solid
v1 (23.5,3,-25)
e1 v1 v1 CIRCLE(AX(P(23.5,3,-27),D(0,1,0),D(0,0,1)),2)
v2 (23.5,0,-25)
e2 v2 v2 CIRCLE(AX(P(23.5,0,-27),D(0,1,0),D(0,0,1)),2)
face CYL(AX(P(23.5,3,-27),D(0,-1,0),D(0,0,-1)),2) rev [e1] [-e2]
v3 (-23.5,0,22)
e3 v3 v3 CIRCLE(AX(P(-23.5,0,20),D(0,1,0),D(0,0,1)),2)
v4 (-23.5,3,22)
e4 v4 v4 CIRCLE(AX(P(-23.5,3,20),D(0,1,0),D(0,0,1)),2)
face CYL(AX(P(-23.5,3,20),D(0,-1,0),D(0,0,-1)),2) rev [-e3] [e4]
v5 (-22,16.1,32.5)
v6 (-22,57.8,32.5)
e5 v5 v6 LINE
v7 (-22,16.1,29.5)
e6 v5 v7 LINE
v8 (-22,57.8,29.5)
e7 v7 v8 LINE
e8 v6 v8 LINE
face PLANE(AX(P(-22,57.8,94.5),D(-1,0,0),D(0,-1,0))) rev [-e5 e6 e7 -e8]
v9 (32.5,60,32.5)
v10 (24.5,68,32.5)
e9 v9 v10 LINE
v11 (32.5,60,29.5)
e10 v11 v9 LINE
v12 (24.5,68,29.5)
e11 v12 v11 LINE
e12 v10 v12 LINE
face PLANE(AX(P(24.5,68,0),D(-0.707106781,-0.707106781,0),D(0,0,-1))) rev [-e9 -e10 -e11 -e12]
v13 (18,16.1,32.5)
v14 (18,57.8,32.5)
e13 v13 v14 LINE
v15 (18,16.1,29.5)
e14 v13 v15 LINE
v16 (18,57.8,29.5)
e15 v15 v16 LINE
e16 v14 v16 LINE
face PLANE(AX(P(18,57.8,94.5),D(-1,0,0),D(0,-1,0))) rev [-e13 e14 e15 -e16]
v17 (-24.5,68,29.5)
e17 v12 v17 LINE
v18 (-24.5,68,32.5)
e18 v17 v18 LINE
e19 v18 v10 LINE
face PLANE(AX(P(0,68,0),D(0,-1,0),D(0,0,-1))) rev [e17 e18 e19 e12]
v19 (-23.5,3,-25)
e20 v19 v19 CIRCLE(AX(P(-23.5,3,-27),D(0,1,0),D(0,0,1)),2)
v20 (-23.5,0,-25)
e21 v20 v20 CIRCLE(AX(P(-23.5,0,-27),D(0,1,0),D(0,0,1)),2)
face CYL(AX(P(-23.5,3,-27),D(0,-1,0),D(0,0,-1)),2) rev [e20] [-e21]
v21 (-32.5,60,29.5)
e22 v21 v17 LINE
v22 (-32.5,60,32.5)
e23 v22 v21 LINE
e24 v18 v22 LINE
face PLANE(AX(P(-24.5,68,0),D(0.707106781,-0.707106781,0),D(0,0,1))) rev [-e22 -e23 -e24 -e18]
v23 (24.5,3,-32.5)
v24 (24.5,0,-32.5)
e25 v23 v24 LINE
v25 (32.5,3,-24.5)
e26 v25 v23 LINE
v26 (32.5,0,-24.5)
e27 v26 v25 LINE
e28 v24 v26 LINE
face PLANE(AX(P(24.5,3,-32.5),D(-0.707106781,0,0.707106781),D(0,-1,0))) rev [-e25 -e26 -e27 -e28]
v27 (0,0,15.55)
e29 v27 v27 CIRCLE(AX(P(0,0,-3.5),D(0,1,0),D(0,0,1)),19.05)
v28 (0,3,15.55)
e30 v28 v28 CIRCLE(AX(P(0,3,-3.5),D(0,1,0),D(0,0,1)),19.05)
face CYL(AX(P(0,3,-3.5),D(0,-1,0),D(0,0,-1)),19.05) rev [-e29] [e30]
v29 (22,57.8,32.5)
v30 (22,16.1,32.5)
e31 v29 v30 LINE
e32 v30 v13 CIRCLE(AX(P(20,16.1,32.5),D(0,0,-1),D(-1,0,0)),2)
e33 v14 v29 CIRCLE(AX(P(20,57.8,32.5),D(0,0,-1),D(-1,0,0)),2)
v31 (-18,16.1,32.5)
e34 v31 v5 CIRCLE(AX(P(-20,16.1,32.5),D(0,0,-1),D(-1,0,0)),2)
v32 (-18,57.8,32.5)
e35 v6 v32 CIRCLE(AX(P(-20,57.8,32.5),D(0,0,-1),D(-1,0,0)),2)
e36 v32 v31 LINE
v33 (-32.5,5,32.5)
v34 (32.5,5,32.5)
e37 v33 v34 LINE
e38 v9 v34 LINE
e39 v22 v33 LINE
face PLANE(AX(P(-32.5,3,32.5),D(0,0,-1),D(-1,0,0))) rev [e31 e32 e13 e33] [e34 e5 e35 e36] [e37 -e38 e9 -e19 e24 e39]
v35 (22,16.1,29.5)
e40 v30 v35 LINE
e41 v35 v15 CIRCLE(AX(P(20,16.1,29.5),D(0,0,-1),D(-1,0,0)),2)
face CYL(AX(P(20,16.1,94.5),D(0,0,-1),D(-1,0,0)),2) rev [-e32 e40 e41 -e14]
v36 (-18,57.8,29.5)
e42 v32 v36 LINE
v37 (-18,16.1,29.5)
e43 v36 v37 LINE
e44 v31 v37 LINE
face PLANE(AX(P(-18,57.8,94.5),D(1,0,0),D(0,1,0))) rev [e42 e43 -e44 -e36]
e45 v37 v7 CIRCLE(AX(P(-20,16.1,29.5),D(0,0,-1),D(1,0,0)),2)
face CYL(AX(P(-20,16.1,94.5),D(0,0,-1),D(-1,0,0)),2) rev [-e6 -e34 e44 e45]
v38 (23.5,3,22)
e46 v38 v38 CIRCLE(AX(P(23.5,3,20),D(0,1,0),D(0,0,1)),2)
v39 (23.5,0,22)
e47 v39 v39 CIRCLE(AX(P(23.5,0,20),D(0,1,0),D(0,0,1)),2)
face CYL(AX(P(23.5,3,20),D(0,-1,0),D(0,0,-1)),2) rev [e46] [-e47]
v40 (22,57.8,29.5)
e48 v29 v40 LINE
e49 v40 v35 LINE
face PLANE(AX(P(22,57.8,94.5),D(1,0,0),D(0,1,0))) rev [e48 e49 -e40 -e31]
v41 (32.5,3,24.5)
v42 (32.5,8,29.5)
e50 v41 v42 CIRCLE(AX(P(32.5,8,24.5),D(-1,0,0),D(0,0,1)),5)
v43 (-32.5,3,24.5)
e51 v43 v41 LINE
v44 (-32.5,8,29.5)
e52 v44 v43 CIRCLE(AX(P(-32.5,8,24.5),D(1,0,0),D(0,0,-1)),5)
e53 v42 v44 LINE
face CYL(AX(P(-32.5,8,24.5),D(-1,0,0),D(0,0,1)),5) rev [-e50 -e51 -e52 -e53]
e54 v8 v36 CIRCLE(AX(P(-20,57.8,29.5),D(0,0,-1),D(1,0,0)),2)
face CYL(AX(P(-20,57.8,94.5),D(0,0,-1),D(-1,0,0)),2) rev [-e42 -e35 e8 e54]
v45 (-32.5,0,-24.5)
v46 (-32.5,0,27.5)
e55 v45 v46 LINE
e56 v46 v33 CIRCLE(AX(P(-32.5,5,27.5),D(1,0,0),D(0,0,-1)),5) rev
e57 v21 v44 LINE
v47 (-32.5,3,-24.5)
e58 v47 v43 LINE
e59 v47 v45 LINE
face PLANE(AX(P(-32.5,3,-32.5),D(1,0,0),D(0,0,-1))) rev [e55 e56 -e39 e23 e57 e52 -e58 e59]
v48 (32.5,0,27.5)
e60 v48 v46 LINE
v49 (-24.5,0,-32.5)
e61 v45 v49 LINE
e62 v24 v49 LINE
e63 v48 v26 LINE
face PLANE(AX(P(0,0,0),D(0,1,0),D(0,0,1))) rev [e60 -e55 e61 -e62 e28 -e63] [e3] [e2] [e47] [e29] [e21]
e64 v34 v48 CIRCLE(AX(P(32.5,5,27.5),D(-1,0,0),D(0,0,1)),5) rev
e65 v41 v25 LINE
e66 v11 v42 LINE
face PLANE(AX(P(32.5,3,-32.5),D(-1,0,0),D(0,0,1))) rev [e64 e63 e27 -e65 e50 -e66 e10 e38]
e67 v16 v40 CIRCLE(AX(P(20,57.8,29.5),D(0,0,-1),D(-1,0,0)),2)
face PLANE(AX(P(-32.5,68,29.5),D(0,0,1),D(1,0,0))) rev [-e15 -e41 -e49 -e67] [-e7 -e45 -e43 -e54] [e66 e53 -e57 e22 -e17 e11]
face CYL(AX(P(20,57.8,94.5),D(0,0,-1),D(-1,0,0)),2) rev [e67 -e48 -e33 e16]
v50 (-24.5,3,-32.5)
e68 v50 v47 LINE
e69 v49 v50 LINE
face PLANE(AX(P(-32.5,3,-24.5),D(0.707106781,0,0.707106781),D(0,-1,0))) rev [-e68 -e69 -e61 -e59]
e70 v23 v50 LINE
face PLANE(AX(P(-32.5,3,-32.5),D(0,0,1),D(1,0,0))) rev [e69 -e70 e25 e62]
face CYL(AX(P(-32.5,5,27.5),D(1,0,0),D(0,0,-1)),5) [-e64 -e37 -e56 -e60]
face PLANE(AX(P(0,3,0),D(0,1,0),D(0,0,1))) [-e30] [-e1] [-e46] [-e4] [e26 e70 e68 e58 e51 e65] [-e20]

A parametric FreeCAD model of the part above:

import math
import FreeCAD as App
import Part
import Sketcher

V = App.Vector


def edges_at(feature, points):
    """Names of the edges that pass closest to the given points."""
    edges = feature.Shape.Edges
    near = lambda p: min(range(len(edges)), key=lambda i: edges[i].distToShape(Part.Vertex(*p))[0])
    return sorted({f"Edge{near(p) + 1}" for p in points})

doc = App.newDocument("Part")
params = doc.addObject("Spreadsheet::Sheet", "Params")
for row, (alias, value) in enumerate([
    ("sketch1_diameter", "4 mm"),
    ("sketch1_diameter2", "38.1 mm"),
    ("sketch1_width", "65 mm"),
    ("pad1_length", "3 mm"),
    ("chamfer_size", "8 mm"),
    ("sketch2_width", "65 mm"),
    ("sketch2_height", "3 mm"),
    ("pad2_length", "65 mm"),
    ("fillet_radius", "5 mm"),
    ("chamfer2_size", "8 mm"),
    ("sketch3_radius", "2 mm"),
    ("sketch3_height", "41.7 mm"),
    ("pocket1_length", "65 mm"),
], start=1):
    params.set(f"A{row}", alias)
    params.set(f"B{row}", "=" + value)
    params.setAlias(f"B{row}", alias)

body = doc.addObject("PartDesign::Body", "Body")

sketch1 = body.newObject("Sketcher::SketchObject", "Sketch")
sketch1.AttachmentSupport = (doc.getObject("XZ_Plane"), [""])
sketch1.MapMode = "FlatFace"
sketch1.addGeometry(Part.LineSegment(V(-32.5, -32.5, 0), V(-32.5, 32.5, 0)), False)
sketch1.addGeometry(Part.LineSegment(V(-32.5, 32.5, 0), V(32.5, 32.5, 0)), False)
sketch1.addGeometry(Part.LineSegment(V(32.5, 32.5, 0), V(32.5, -32.5, 0)), False)
sketch1.addGeometry(Part.LineSegment(V(32.5, -32.5, 0), V(-32.5, -32.5, 0)), False)
sketch1.addGeometry(Part.Circle(V(-23.5, 20, 0), V(0, 0, 1), 2), False)
sketch1.addGeometry(Part.Circle(V(23.5, 20, 0), V(0, 0, 1), 2), False)
sketch1.addGeometry(Part.Circle(V(-23.5, -27, 0), V(0, 0, 1), 2), False)
sketch1.addGeometry(Part.Circle(V(0, -3.5, 0), V(0, 0, 1), 19.1), False)
sketch1.addGeometry(Part.Circle(V(23.5, -27, 0), V(0, 0, 1), 2), False)
sketch1.addConstraint(Sketcher.Constraint("Coincident", 0, 2, 1, 1))
sketch1.addConstraint(Sketcher.Constraint("Coincident", 1, 2, 2, 1))
sketch1.addConstraint(Sketcher.Constraint("Coincident", 2, 2, 3, 1))
sketch1.addConstraint(Sketcher.Constraint("Coincident", 3, 2, 0, 1))
sketch1.addConstraint(Sketcher.Constraint("Vertical", 0))
sketch1.addConstraint(Sketcher.Constraint("Horizontal", 1))
sketch1.addConstraint(Sketcher.Constraint("Vertical", 2))
sketch1.addConstraint(Sketcher.Constraint("Horizontal", 3))
sketch1.addConstraint(Sketcher.Constraint("Equal", 4, 5))
sketch1.addConstraint(Sketcher.Constraint("Equal", 5, 6))
sketch1.addConstraint(Sketcher.Constraint("Equal", 6, 8))
sketch1.addConstraint(Sketcher.Constraint("Symmetric", 0, 2, 2, 2, -1, 1))
sketch1.addConstraint(Sketcher.Constraint("Symmetric", 4, 3, 5, 3, -2))
sketch1.addConstraint(Sketcher.Constraint("Symmetric", 6, 3, 8, 3, -2))
sketch1.addConstraint(Sketcher.Constraint("PointOnObject", 7, 3, -2))
sketch1.addConstraint(Sketcher.Constraint("Vertical", 4, 3, 6, 3))
sketch1.addConstraint(Sketcher.Constraint("Equal", 3, 0))
sketch1.addConstraint(Sketcher.Constraint("Diameter", 4, 4.0))
sketch1.addConstraint(Sketcher.Constraint("Diameter", 7, 38.1))
sketch1.addConstraint(Sketcher.Constraint("DistanceX", 1, 1, 1, 2, 65.0))
sketch1.addConstraint(Sketcher.Constraint("DistanceY", -1, 1, 4, 3, 20.0))
sketch1.addConstraint(Sketcher.Constraint("DistanceY", 6, 3, -1, 1, 27.0))
sketch1.addConstraint(Sketcher.Constraint("DistanceX", 4, 3, 5, 3, 47.0))
sketch1.addConstraint(Sketcher.Constraint("DistanceY", 7, 3, 0, 2, 36.0))
sketch1.setExpression("Constraints[17]", "Params.sketch1_diameter")
sketch1.setExpression("Constraints[18]", "Params.sketch1_diameter2")
sketch1.setExpression("Constraints[19]", "Params.sketch1_width")
pad1 = body.newObject("PartDesign::Pad", "Pad")
pad1.Profile = sketch1
pad1.setExpression("Length", "Params.pad1_length")
pad1.Reversed = True
doc.recompute()

chamfer = body.newObject("PartDesign::Chamfer", "Chamfer")
chamfer.Base = (pad1, edges_at(pad1, [(-32.5, 1.5, -32.5), (32.5, 1.5, -32.5)]))
chamfer.setExpression("Size", "Params.chamfer_size")

sketch2 = body.newObject("Sketcher::SketchObject", "Sketch001")
sketch2.AttachmentSupport = (doc.getObject("XZ_Plane"), [""])
sketch2.MapMode = "FlatFace"
sketch2.AttachmentOffset = App.Placement(V(0, 0, -3), App.Rotation())
sketch2.addGeometry(Part.LineSegment(V(-32.5, 29.5, 0), V(-32.5, 32.5, 0)), False)
sketch2.addGeometry(Part.LineSegment(V(-32.5, 32.5, 0), V(32.5, 32.5, 0)), False)
sketch2.addGeometry(Part.LineSegment(V(32.5, 32.5, 0), V(32.5, 29.5, 0)), False)
sketch2.addGeometry(Part.LineSegment(V(32.5, 29.5, 0), V(-32.5, 29.5, 0)), False)
sketch2.addConstraint(Sketcher.Constraint("Coincident", 0, 2, 1, 1))
sketch2.addConstraint(Sketcher.Constraint("Coincident", 1, 2, 2, 1))
sketch2.addConstraint(Sketcher.Constraint("Coincident", 2, 2, 3, 1))
sketch2.addConstraint(Sketcher.Constraint("Coincident", 3, 2, 0, 1))
sketch2.addConstraint(Sketcher.Constraint("Vertical", 0))
sketch2.addConstraint(Sketcher.Constraint("Horizontal", 1))
sketch2.addConstraint(Sketcher.Constraint("Vertical", 2))
sketch2.addConstraint(Sketcher.Constraint("Horizontal", 3))
sketch2.addConstraint(Sketcher.Constraint("DistanceX", 1, 1, 1, 2, 65.0))
sketch2.addConstraint(Sketcher.Constraint("DistanceY", 0, 1, 0, 2, 3.0))
sketch2.addConstraint(Sketcher.Constraint("DistanceX", 0, 2, -1, 1, 32.5))
sketch2.addConstraint(Sketcher.Constraint("DistanceY", -1, 1, 0, 2, 32.5))
sketch2.setExpression("Constraints[8]", "Params.sketch2_width")
sketch2.setExpression("Constraints[9]", "Params.sketch2_height")
pad2 = body.newObject("PartDesign::Pad", "Pad001")
pad2.Profile = sketch2
pad2.setExpression("Length", "Params.pad2_length")
pad2.Reversed = True
doc.recompute()

fillet = body.newObject("PartDesign::Fillet", "Fillet")
fillet.Base = (pad2, edges_at(pad2, [(0, 0, 32.5), (0, 3, 29.5)]))
fillet.setExpression("Radius", "Params.fillet_radius")
doc.recompute()

chamfer2 = body.newObject("PartDesign::Chamfer", "Chamfer001")
chamfer2.Base = (fillet, edges_at(fillet, [(-32.5, 68, 31), (32.5, 68, 31)]))
chamfer2.setExpression("Size", "Params.chamfer2_size")

sketch3 = body.newObject("Sketcher::SketchObject", "Sketch002")
sketch3.AttachmentSupport = (doc.getObject("XY_Plane"), [""])
sketch3.MapMode = "FlatFace"
sketch3.AttachmentOffset = App.Placement(V(0, 0, 29.5), App.Rotation())
sketch3.addGeometry(Part.LineSegment(V(18, 16.1, 0), V(18, 57.8, 0)), False)
sketch3.addGeometry(Part.ArcOfCircle(Part.Circle(V(20, 57.8, 0), V(0, 0, 1), 2), math.radians(0), math.radians(180)), False)
sketch3.addGeometry(Part.LineSegment(V(22, 57.8, 0), V(22, 16.1, 0)), False)
sketch3.addGeometry(Part.ArcOfCircle(Part.Circle(V(20, 16.1, 0), V(0, 0, 1), 2), math.radians(180), math.radians(360)), False)
sketch3.addGeometry(Part.LineSegment(V(-18, 57.8, 0), V(-18, 16.1, 0)), False)
sketch3.addGeometry(Part.ArcOfCircle(Part.Circle(V(-20, 16.1, 0), V(0, 0, 1), 2), math.radians(180), math.radians(360)), False)
sketch3.addGeometry(Part.LineSegment(V(-22, 16.1, 0), V(-22, 57.8, 0)), False)
sketch3.addGeometry(Part.ArcOfCircle(Part.Circle(V(-20, 57.8, 0), V(0, 0, 1), 2), math.radians(0), math.radians(180)), False)
sketch3.addConstraint(Sketcher.Constraint("Tangent", 0, 2, 1, 2))
sketch3.addConstraint(Sketcher.Constraint("Tangent", 1, 1, 2, 1))
sketch3.addConstraint(Sketcher.Constraint("Tangent", 2, 2, 3, 2))
sketch3.addConstraint(Sketcher.Constraint("Tangent", 3, 1, 0, 1))
sketch3.addConstraint(Sketcher.Constraint("Tangent", 4, 2, 5, 2))
sketch3.addConstraint(Sketcher.Constraint("Tangent", 5, 1, 6, 1))
sketch3.addConstraint(Sketcher.Constraint("Tangent", 6, 2, 7, 2))
sketch3.addConstraint(Sketcher.Constraint("Tangent", 7, 1, 4, 1))
sketch3.addConstraint(Sketcher.Constraint("Vertical", 0))
sketch3.addConstraint(Sketcher.Constraint("Vertical", 2))
sketch3.addConstraint(Sketcher.Constraint("Vertical", 4))
sketch3.addConstraint(Sketcher.Constraint("Vertical", 6))
sketch3.addConstraint(Sketcher.Constraint("Equal", 3, 5))
sketch3.addConstraint(Sketcher.Constraint("Symmetric", 3, 3, 5, 3, -2))
sketch3.addConstraint(Sketcher.Constraint("Horizontal", 1, 3, 7, 3))
sketch3.addConstraint(Sketcher.Constraint("Radius", 1, 2.0))
sketch3.addConstraint(Sketcher.Constraint("DistanceY", 0, 1, 0, 2, 41.7))
sketch3.addConstraint(Sketcher.Constraint("DistanceX", -1, 1, 1, 3, 20.0))
sketch3.addConstraint(Sketcher.Constraint("DistanceY", -1, 1, 1, 3, 57.8))
sketch3.setExpression("Constraints[15]", "Params.sketch3_radius")
sketch3.setExpression("Constraints[16]", "Params.sketch3_height")
pocket1 = body.newObject("PartDesign::Pocket", "Pocket")
pocket1.Profile = sketch3
pocket1.setExpression("Length", "Params.pocket1_length")
pocket1.Reversed = True

doc.recompute()
